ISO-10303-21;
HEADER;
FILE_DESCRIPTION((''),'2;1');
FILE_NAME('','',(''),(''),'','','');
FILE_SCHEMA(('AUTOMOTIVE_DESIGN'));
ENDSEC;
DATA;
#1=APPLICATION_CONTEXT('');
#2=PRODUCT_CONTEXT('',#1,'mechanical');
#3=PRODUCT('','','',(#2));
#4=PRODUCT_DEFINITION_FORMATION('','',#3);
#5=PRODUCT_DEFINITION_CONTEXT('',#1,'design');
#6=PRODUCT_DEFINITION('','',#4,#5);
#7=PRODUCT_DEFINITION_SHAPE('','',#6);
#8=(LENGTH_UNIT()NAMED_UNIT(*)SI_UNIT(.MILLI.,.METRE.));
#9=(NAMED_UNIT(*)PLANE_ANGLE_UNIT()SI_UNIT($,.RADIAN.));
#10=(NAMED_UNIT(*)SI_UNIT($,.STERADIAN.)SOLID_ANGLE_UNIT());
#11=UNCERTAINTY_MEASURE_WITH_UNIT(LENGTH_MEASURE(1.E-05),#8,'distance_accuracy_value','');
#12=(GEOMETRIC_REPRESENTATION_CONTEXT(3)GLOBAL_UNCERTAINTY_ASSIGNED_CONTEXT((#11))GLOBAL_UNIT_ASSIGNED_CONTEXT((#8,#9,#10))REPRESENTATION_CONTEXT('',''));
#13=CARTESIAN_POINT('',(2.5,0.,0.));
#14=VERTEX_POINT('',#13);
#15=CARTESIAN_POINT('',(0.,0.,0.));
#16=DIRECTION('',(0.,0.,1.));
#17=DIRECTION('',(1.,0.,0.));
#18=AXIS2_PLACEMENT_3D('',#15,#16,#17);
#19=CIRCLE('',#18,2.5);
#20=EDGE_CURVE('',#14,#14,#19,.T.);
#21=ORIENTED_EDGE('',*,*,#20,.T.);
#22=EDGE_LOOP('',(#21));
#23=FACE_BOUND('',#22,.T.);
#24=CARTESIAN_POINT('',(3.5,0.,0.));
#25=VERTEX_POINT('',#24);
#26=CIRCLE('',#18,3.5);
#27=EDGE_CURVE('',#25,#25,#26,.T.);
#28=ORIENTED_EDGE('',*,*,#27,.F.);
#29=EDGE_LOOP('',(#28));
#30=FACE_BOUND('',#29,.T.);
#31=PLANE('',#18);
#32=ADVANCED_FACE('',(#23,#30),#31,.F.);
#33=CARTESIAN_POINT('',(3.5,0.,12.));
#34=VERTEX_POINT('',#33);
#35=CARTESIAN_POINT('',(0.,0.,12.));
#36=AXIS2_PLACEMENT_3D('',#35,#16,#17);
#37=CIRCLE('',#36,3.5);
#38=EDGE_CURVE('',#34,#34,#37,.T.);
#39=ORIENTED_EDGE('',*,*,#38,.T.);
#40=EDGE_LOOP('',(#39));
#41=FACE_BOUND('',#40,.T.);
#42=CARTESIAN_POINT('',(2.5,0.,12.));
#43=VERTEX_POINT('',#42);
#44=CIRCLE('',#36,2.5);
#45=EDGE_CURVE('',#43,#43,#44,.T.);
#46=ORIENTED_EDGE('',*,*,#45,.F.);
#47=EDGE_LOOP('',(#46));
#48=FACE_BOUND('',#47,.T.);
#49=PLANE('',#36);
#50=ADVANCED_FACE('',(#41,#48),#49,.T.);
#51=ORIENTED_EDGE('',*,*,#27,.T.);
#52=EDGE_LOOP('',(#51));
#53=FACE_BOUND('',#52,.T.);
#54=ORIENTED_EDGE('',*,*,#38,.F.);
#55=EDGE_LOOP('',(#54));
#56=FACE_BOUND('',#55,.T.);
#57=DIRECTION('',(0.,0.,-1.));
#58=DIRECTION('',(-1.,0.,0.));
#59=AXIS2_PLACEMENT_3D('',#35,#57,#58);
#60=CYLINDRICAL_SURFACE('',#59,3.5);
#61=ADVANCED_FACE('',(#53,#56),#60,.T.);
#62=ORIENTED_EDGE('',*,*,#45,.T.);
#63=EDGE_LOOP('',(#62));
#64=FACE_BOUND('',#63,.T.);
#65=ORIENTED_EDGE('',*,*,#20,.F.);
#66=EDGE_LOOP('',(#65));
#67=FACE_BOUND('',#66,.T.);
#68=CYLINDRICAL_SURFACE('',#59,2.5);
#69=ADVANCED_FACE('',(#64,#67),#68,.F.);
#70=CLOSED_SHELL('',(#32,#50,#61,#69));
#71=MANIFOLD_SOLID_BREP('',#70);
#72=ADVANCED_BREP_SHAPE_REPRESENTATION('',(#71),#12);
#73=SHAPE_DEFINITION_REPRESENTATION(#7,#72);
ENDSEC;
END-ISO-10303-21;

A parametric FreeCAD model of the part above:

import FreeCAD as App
import Part
import Sketcher

V = App.Vector

doc = App.newDocument("Part")
body = doc.addObject("PartDesign::Body", "Body")

# Sketch on XY plane
sketch1 = body.newObject("Sketcher::SketchObject", "Sketch")
sketch1.AttachmentSupport = (doc.getObject("XY_Plane"), [""])
sketch1.MapMode = "FlatFace"
sketch1.addGeometry([
    Part.Circle(V(0, 0, 0), V(0, 0, 1), 3.5),
    Part.Circle(V(0, 0, 0), V(0, 0, 1), 2.5),
], False)
sketch1.addConstraint([
    Sketcher.Constraint("Coincident", 0, 3, -1, 1),
    Sketcher.Constraint("Coincident", 1, 3, -1, 1),
    Sketcher.Constraint("Diameter", 0, 7.0),
    Sketcher.Constraint("Diameter", 1, 5.0),
])
pad1 = body.newObject("PartDesign::Pad", "Pad")
pad1.Profile = sketch1
pad1.Length = 12

doc.recompute()
